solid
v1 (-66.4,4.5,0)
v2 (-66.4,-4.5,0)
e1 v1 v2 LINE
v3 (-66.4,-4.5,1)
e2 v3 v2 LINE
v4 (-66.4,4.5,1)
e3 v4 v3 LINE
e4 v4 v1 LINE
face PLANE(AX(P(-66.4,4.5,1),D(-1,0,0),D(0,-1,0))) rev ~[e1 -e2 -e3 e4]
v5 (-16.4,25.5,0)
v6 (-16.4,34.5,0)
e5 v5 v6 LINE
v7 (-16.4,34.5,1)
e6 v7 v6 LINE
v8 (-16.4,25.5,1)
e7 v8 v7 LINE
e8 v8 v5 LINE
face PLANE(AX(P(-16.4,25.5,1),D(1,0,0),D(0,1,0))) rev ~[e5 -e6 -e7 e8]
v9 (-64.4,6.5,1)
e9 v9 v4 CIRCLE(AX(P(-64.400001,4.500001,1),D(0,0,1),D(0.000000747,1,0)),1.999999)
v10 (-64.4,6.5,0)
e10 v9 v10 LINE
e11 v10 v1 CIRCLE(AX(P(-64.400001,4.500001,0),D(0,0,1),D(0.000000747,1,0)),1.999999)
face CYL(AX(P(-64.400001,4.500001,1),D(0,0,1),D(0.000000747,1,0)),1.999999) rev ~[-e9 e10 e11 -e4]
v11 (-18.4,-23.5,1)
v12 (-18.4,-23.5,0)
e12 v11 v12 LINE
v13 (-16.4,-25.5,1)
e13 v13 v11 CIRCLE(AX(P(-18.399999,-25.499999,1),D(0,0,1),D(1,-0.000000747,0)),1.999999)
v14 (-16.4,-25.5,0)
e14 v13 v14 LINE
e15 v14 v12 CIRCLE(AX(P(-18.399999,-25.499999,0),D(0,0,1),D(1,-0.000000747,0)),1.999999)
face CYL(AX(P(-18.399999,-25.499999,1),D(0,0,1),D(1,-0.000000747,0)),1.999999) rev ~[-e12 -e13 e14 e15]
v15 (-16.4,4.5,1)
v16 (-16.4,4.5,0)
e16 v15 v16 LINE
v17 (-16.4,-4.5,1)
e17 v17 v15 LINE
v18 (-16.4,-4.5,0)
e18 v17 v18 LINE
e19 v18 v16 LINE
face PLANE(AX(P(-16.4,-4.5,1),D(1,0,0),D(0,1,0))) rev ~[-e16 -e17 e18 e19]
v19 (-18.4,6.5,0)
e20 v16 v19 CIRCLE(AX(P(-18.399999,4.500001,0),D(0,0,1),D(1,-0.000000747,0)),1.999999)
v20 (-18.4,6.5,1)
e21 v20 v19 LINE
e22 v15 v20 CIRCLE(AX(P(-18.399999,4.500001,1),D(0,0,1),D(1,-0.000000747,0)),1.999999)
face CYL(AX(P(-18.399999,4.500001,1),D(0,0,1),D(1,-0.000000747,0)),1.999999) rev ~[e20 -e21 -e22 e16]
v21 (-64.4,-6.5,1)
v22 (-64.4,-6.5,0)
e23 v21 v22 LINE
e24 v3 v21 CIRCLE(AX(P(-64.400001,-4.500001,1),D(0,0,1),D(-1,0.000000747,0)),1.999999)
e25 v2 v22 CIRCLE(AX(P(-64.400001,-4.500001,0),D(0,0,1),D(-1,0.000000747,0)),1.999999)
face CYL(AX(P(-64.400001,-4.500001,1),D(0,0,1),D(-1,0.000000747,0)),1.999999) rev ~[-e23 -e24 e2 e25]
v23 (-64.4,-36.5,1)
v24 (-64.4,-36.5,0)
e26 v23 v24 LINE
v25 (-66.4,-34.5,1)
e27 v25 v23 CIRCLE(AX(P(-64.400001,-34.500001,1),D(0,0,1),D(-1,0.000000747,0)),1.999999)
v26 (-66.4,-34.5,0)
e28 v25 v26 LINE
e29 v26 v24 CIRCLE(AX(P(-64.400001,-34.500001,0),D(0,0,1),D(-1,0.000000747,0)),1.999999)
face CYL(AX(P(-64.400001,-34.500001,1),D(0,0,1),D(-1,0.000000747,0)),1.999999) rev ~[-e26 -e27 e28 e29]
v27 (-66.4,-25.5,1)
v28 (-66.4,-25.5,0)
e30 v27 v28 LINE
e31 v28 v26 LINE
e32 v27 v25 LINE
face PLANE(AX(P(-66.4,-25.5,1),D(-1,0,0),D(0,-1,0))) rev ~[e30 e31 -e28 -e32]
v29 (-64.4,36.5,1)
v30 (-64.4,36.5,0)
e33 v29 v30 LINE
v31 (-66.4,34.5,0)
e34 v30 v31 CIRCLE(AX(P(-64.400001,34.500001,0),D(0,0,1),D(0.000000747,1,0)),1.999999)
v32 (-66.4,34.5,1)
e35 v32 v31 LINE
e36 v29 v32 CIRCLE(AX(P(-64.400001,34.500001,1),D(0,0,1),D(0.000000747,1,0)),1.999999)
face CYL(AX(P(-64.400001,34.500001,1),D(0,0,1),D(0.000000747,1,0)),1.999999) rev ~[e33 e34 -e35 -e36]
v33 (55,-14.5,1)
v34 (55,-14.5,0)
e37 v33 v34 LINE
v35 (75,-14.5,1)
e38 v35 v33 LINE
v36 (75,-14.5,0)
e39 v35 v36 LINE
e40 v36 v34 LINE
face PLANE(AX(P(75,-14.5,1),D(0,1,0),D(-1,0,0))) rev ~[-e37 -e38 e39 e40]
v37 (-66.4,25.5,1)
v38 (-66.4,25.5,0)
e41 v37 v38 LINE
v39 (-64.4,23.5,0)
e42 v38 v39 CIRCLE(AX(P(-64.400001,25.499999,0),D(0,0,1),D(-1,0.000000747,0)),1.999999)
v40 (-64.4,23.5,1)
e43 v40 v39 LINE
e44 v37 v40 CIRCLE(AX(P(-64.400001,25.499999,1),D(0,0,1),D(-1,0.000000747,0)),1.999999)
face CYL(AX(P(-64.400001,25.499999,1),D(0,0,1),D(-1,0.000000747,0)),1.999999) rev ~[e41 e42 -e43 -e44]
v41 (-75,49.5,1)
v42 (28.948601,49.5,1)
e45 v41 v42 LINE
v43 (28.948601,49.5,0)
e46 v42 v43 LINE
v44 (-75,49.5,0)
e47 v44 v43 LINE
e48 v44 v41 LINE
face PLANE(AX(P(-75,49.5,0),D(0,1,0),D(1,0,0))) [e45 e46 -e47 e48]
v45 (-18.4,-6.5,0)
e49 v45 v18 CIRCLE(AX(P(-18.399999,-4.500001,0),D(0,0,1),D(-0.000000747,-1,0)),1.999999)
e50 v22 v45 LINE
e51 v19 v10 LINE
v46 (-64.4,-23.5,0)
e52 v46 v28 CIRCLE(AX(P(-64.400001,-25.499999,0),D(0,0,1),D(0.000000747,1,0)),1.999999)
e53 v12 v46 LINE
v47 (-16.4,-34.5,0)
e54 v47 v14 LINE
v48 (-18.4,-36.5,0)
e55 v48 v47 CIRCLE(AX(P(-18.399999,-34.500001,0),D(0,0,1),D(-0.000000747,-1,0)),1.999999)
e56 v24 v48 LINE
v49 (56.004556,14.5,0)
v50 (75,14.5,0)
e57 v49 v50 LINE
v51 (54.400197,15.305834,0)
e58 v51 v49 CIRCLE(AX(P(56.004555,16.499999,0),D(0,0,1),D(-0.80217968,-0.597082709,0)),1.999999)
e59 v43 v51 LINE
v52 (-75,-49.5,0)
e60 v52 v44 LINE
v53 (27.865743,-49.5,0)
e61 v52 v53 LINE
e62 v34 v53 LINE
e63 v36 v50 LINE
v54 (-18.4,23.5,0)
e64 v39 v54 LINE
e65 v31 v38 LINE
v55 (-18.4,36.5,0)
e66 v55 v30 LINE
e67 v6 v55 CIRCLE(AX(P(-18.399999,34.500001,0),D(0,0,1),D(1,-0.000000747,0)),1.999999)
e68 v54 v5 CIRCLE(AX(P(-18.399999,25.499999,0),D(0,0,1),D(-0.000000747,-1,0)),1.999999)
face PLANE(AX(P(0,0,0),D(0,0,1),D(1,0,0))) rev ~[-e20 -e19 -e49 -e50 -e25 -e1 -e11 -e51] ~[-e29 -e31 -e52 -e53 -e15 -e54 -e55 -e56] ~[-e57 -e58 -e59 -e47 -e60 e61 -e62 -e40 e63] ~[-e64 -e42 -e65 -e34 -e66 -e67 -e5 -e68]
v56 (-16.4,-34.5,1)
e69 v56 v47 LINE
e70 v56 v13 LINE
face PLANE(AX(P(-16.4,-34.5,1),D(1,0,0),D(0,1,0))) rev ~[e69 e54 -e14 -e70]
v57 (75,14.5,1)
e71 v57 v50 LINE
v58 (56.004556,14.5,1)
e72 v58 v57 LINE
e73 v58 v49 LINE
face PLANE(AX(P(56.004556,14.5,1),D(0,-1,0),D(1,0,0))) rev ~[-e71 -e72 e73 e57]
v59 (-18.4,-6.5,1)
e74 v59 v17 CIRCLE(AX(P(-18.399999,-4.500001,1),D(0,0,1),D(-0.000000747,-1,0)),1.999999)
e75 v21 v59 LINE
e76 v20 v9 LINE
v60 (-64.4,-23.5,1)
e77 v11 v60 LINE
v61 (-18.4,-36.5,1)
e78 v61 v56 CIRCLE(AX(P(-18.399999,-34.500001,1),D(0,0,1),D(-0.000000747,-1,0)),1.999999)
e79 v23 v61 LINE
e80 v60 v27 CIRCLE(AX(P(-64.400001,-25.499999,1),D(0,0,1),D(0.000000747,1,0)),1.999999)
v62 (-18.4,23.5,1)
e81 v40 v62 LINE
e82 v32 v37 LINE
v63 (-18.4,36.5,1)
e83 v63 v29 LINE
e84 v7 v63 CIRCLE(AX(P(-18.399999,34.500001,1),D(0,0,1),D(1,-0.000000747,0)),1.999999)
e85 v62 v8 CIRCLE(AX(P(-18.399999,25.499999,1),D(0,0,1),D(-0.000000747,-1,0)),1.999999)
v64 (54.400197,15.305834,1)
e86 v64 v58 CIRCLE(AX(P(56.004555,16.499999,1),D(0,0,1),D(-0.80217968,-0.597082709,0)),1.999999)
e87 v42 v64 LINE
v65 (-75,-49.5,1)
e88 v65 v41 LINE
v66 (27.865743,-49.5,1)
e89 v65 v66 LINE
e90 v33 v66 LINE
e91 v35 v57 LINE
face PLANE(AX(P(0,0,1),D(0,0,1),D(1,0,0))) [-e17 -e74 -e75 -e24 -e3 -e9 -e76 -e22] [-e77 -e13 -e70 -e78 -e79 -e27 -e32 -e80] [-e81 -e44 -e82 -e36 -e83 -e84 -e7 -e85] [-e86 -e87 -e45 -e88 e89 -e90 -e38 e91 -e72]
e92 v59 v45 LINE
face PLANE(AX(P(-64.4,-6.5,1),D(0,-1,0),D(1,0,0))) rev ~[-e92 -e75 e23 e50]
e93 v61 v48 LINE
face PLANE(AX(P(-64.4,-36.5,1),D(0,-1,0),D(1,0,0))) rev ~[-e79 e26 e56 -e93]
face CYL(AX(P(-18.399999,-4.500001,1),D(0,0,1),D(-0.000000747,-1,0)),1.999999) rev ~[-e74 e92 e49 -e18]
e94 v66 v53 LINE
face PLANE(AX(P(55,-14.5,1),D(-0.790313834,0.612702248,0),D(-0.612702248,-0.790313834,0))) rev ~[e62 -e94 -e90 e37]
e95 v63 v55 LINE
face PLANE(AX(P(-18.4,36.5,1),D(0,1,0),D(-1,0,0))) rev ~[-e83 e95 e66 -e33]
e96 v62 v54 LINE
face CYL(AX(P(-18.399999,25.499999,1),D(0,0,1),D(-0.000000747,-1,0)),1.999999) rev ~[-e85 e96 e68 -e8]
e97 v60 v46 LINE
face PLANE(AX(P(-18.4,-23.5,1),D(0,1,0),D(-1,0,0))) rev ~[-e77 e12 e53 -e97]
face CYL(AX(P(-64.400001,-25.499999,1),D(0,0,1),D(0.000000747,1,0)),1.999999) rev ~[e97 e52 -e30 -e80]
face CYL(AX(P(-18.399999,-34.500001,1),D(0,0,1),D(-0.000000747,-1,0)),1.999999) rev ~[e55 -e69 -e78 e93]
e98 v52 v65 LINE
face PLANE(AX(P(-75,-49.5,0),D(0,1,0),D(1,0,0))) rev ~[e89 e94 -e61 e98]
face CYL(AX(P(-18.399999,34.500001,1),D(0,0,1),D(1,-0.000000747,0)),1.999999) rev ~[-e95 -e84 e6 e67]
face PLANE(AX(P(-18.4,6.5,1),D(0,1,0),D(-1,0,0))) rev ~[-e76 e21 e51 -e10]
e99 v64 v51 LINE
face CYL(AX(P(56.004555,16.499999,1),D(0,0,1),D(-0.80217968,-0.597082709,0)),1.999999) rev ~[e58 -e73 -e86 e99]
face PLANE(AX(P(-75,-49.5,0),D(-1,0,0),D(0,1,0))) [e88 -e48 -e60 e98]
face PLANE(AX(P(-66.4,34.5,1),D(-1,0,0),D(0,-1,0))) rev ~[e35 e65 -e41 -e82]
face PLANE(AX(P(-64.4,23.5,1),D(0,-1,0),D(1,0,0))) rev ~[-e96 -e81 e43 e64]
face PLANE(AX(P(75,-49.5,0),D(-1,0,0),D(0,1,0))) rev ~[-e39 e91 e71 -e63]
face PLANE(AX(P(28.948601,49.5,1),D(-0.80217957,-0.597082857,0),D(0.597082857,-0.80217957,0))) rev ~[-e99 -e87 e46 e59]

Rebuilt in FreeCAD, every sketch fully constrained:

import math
import FreeCAD as App
import Part
import Sketcher

V = App.Vector


def add_polygon(sketch, points):
    """Adds a closed chain of lines whose ends are joined by coincident constraints."""
    first, n = sketch.GeometryCount, len(points)
    for a, b in zip(points, points[1:] + points[:1]):
        sketch.addGeometry(Part.LineSegment(App.Vector(*a, 0), App.Vector(*b, 0)), False)
    for i in range(n):
        sketch.addConstraint(Sketcher.Constraint("Coincident", first + i, 2, first + (i + 1) % n, 1))

doc = App.newDocument("Part")
params = doc.addObject("Spreadsheet::Sheet", "Params")
for row, (alias, value) in enumerate([
    ("sketch1_width", "150 mm"),
    ("sketch1_height", "99 mm"),
    ("pad1_length", "1 mm"),
    ("sketch2_radius", "1.999999 mm"),
    ("sketch2_width", "46 mm"),
    ("sketch2_width2", "20 mm"),
    ("sketch2_height", "9 mm"),
    ("sketch2_height2", "35 mm"),
    ("pocket1_length", "25 mm"),
], start=1):
    params.set(f"A{row}", alias)
    params.set(f"B{row}", "=" + value)
    params.setAlias(f"B{row}", alias)

body = doc.addObject("PartDesign::Body", "Body")

# Sketch on XY plane
sketch1 = body.newObject("Sketcher::SketchObject", "Sketch")
sketch1.AttachmentSupport = (doc.getObject("XY_Plane"), [""])
sketch1.MapMode = "FlatFace"
add_polygon(sketch1, [(-75, 50), (-75, -50), (75, -50), (75, 50)])  # lines 0-3
sketch1.addConstraint([
    Sketcher.Constraint("Vertical", 0),
    Sketcher.Constraint("Horizontal", 1),
    Sketcher.Constraint("Vertical", 2),
    Sketcher.Constraint("Horizontal", 3),
    Sketcher.Constraint("Symmetric", 0, 2, 2, 2, -1, 1),
    Sketcher.Constraint("DistanceX", 1, 1, 1, 2, 150.0),
    Sketcher.Constraint("DistanceY", 0, 2, 0, 1, 99.0),
])
sketch1.setExpression("Constraints[9]", "Params.sketch1_width")
sketch1.setExpression("Constraints[10]", "Params.sketch1_height")
pad1 = body.newObject("PartDesign::Pad", "Pad")
pad1.Profile = sketch1
pad1.setExpression("Length", "Params.pad1_length")

# Sketch on XY plane
sketch2 = body.newObject("Sketcher::SketchObject", "Sketch001")
sketch2.AttachmentSupport = (doc.getObject("XY_Plane"), [""])
sketch2.MapMode = "FlatFace"
sketch2.AttachmentOffset = App.Placement(V(0, 0, 1), App.Rotation())
sketch2.addGeometry(Part.ArcOfCircle(Part.Circle(V(-64.4, 34.5, 0), V(0, 0, 1), 2), math.radians(90), math.radians(180)), False)  # 0
sketch2.addGeometry(Part.LineSegment(V(-66.4, 34.5, 0), V(-66.4, 25.5, 0)), False)  # 1
sketch2.addGeometry(Part.ArcOfCircle(Part.Circle(V(-64.4, 25.5, 0), V(0, 0, 1), 2), math.radians(180), math.radians(270)), False)  # 2
sketch2.addGeometry(Part.LineSegment(V(-64.4, 23.5, 0), V(-18.4, 23.5, 0)), False)  # 3
sketch2.addGeometry(Part.ArcOfCircle(Part.Circle(V(-18.4, 25.5, 0), V(0, 0, 1), 2), math.radians(-90), math.radians(0)), False)  # 4
sketch2.addGeometry(Part.LineSegment(V(-16.4, 25.5, 0), V(-16.4, 34.5, 0)), False)  # 5
sketch2.addGeometry(Part.ArcOfCircle(Part.Circle(V(-18.4, 34.5, 0), V(0, 0, 1), 2), math.radians(0), math.radians(90)), False)  # 6
sketch2.addGeometry(Part.LineSegment(V(-18.4, 36.5, 0), V(-64.4, 36.5, 0)), False)  # 7
sketch2.addGeometry(Part.ArcOfCircle(Part.Circle(V(-64.4, 4.5, 0), V(0, 0, 1), 2), math.radians(90), math.radians(180)), False)  # 8
sketch2.addGeometry(Part.LineSegment(V(-66.4, 4.5, 0), V(-66.4, -4.5, 0)), False)  # 9
sketch2.addGeometry(Part.ArcOfCircle(Part.Circle(V(-64.4, -4.5, 0), V(0, 0, 1), 2), math.radians(180), math.radians(270)), False)  # 10
sketch2.addGeometry(Part.LineSegment(V(-64.4, -6.5, 0), V(-18.4, -6.5, 0)), False)  # 11
sketch2.addGeometry(Part.ArcOfCircle(Part.Circle(V(-18.4, -4.5, 0), V(0, 0, 1), 2), math.radians(-90), math.radians(0)), False)  # 12
sketch2.addGeometry(Part.LineSegment(V(-16.4, -4.5, 0), V(-16.4, 4.5, 0)), False)  # 13
sketch2.addGeometry(Part.ArcOfCircle(Part.Circle(V(-18.4, 4.5, 0), V(0, 0, 1), 2), math.radians(0), math.radians(90)), False)  # 14
sketch2.addGeometry(Part.LineSegment(V(-18.4, 6.5, 0), V(-64.4, 6.5, 0)), False)  # 15
sketch2.addGeometry(Part.ArcOfCircle(Part.Circle(V(-64.4, -25.5, 0), V(0, 0, 1), 2), math.radians(90), math.radians(180)), False)  # 16
sketch2.addGeometry(Part.LineSegment(V(-66.4, -25.5, 0), V(-66.4, -34.5, 0)), False)  # 17
sketch2.addGeometry(Part.ArcOfCircle(Part.Circle(V(-64.4, -34.5, 0), V(0, 0, 1), 2), math.radians(180), math.radians(270)), False)  # 18
sketch2.addGeometry(Part.LineSegment(V(-64.4, -36.5, 0), V(-18.4, -36.5, 0)), False)  # 19
sketch2.addGeometry(Part.ArcOfCircle(Part.Circle(V(-18.4, -34.5, 0), V(0, 0, 1), 2), math.radians(-90), math.radians(0)), False)  # 20
sketch2.addGeometry(Part.LineSegment(V(-16.4, -34.5, 0), V(-16.4, -25.5, 0)), False)  # 21
sketch2.addGeometry(Part.ArcOfCircle(Part.Circle(V(-18.4, -25.5, 0), V(0, 0, 1), 2), math.radians(0), math.radians(90)), False)  # 22
sketch2.addGeometry(Part.LineSegment(V(-18.4, -23.5, 0), V(-64.4, -23.5, 0)), False)  # 23
sketch2.addGeometry(Part.LineSegment(V(56, 14.5, 0), V(75, 14.5, 0)), False)  # 24
sketch2.addGeometry(Part.LineSegment(V(75, 14.5, 0), V(75, 49.5, 0)), False)  # 25
sketch2.addGeometry(Part.LineSegment(V(75, 49.5, 0), V(28.9, 49.5, 0)), False)  # 26
sketch2.addGeometry(Part.LineSegment(V(28.9, 49.5, 0), V(54.4, 15.3, 0)), False)  # 27
sketch2.addGeometry(Part.ArcOfCircle(Part.Circle(V(56, 16.5, 0), V(0, 0, 1), 2), math.radians(-143), math.radians(-90)), False)  # 28
add_polygon(sketch2, [(75, -49.5), (75, -14.5), (55, -14.5), (27.9, -49.5)])  # lines 29-32
sketch2.addConstraint([
    Sketcher.Constraint("Tangent", 0, 2, 1, 1),
    Sketcher.Constraint("Tangent", 1, 2, 2, 1),
    Sketcher.Constraint("Tangent", 2, 2, 3, 1),
    Sketcher.Constraint("Tangent", 3, 2, 4, 1),
    Sketcher.Constraint("Tangent", 4, 2, 5, 1),
    Sketcher.Constraint("Tangent", 5, 2, 6, 1),
    Sketcher.Constraint("Tangent", 6, 2, 7, 1),
    Sketcher.Constraint("Tangent", 7, 2, 0, 1),
    Sketcher.Constraint("Tangent", 8, 2, 9, 1),
    Sketcher.Constraint("Tangent", 9, 2, 10, 1),
    Sketcher.Constraint("Tangent", 10, 2, 11, 1),
    Sketcher.Constraint("Tangent", 11, 2, 12, 1),
    Sketcher.Constraint("Tangent", 12, 2, 13, 1),
    Sketcher.Constraint("Tangent", 13, 2, 14, 1),
    Sketcher.Constraint("Tangent", 14, 2, 15, 1),
    Sketcher.Constraint("Tangent", 15, 2, 8, 1),
    Sketcher.Constraint("Tangent", 16, 2, 17, 1),
    Sketcher.Constraint("Tangent", 17, 2, 18, 1),
    Sketcher.Constraint("Tangent", 18, 2, 19, 1),
    Sketcher.Constraint("Tangent", 19, 2, 20, 1),
    Sketcher.Constraint("Tangent", 20, 2, 21, 1),
    Sketcher.Constraint("Tangent", 21, 2, 22, 1),
    Sketcher.Constraint("Tangent", 22, 2, 23, 1),
    Sketcher.Constraint("Tangent", 23, 2, 16, 1),
    Sketcher.Constraint("Coincident", 24, 2, 25, 1),
    Sketcher.Constraint("Coincident", 25, 2, 26, 1),
    Sketcher.Constraint("Coincident", 26, 2, 27, 1),
    Sketcher.Constraint("Tangent", 27, 2, 28, 1),
    Sketcher.Constraint("Tangent", 28, 2, 24, 1),
    Sketcher.Constraint("Vertical", 1),
    Sketcher.Constraint("Horizontal", 3),
    Sketcher.Constraint("Vertical", 5),
    Sketcher.Constraint("Horizontal", 7),
    Sketcher.Constraint("Vertical", 9),
    Sketcher.Constraint("Horizontal", 11),
    Sketcher.Constraint("Vertical", 13),
    Sketcher.Constraint("Horizontal", 15),
    Sketcher.Constraint("Vertical", 17),
    Sketcher.Constraint("Horizontal", 19),
    Sketcher.Constraint("Vertical", 21),
    Sketcher.Constraint("Horizontal", 23),
    Sketcher.Constraint("Horizontal", 24),
    Sketcher.Constraint("Vertical", 25),
    Sketcher.Constraint("Horizontal", 26),
    Sketcher.Constraint("Vertical", 29),
    Sketcher.Constraint("Horizontal", 30),
    Sketcher.Constraint("Horizontal", 32),
    Sketcher.Constraint("Equal", 0, 2),
    Sketcher.Constraint("Equal", 2, 4),
    Sketcher.Constraint("Equal", 4, 6),
    Sketcher.Constraint("Equal", 6, 8),
    Sketcher.Constraint("Equal", 8, 10),
    Sketcher.Constraint("Equal", 10, 12),
    Sketcher.Constraint("Equal", 12, 14),
    Sketcher.Constraint("Equal", 14, 16),
    Sketcher.Constraint("Equal", 16, 18),
    Sketcher.Constraint("Equal", 18, 20),
    Sketcher.Constraint("Equal", 20, 22),
    Sketcher.Constraint("Equal", 22, 28),
    Sketcher.Constraint("Symmetric", 2, 3, 16, 3, -1),
    Sketcher.Constraint("Symmetric", 6, 3, 20, 3, -1),
    Sketcher.Constraint("Symmetric", 24, 2, 29, 2, -1),
    Sketcher.Constraint("Vertical", 2, 3, 8, 3),
    Sketcher.Constraint("Vertical", 6, 3, 12, 3),
    Sketcher.Constraint("Equal", 5, 9),
    Sketcher.Constraint("Equal", 25, 29),
    Sketcher.Constraint("Radius", 0, 1.999999),
    Sketcher.Constraint("DistanceX", 3, 1, 3, 2, 46.0),
    Sketcher.Constraint("DistanceX", 30, 2, 30, 1, 20.0),
    Sketcher.Constraint("DistanceY", 1, 2, 1, 1, 9.0),
    Sketcher.Constraint("DistanceY", 25, 1, 25, 2, 35.0),
    Sketcher.Constraint("DistanceX", -1, 1, 24, 2, 75.0),
    Sketcher.Constraint("DistanceY", 8, 3, 0, 3, 30.0),
    Sketcher.Constraint("DistanceY", 16, 3, 8, 3, 30.0),
    Sketcher.Constraint("DistanceY", 28, 3, 4, 3, 9.0),
    Sketcher.Constraint("DistanceX", 0, 3, -1, 1, 64.400001),
    Sketcher.Constraint("DistanceX", 26, 2, 26, 1, 46.051399),
    Sketcher.Constraint("DistanceX", 24, 1, 24, 2, 18.995444),
    Sketcher.Constraint("DistanceX", 32, 1, 32, 2, 47.134257),
])
sketch2.setExpression("Constraints[70]", "Params.sketch2_radius")
sketch2.setExpression("Constraints[71]", "Params.sketch2_width")
sketch2.setExpression("Constraints[72]", "Params.sketch2_width2")
sketch2.setExpression("Constraints[73]", "Params.sketch2_height")
sketch2.setExpression("Constraints[74]", "Params.sketch2_height2")
pocket1 = body.newObject("PartDesign::Pocket", "Pocket")
pocket1.Profile = sketch2
pocket1.setExpression("Length", "Params.pocket1_length")

doc.recompute()
